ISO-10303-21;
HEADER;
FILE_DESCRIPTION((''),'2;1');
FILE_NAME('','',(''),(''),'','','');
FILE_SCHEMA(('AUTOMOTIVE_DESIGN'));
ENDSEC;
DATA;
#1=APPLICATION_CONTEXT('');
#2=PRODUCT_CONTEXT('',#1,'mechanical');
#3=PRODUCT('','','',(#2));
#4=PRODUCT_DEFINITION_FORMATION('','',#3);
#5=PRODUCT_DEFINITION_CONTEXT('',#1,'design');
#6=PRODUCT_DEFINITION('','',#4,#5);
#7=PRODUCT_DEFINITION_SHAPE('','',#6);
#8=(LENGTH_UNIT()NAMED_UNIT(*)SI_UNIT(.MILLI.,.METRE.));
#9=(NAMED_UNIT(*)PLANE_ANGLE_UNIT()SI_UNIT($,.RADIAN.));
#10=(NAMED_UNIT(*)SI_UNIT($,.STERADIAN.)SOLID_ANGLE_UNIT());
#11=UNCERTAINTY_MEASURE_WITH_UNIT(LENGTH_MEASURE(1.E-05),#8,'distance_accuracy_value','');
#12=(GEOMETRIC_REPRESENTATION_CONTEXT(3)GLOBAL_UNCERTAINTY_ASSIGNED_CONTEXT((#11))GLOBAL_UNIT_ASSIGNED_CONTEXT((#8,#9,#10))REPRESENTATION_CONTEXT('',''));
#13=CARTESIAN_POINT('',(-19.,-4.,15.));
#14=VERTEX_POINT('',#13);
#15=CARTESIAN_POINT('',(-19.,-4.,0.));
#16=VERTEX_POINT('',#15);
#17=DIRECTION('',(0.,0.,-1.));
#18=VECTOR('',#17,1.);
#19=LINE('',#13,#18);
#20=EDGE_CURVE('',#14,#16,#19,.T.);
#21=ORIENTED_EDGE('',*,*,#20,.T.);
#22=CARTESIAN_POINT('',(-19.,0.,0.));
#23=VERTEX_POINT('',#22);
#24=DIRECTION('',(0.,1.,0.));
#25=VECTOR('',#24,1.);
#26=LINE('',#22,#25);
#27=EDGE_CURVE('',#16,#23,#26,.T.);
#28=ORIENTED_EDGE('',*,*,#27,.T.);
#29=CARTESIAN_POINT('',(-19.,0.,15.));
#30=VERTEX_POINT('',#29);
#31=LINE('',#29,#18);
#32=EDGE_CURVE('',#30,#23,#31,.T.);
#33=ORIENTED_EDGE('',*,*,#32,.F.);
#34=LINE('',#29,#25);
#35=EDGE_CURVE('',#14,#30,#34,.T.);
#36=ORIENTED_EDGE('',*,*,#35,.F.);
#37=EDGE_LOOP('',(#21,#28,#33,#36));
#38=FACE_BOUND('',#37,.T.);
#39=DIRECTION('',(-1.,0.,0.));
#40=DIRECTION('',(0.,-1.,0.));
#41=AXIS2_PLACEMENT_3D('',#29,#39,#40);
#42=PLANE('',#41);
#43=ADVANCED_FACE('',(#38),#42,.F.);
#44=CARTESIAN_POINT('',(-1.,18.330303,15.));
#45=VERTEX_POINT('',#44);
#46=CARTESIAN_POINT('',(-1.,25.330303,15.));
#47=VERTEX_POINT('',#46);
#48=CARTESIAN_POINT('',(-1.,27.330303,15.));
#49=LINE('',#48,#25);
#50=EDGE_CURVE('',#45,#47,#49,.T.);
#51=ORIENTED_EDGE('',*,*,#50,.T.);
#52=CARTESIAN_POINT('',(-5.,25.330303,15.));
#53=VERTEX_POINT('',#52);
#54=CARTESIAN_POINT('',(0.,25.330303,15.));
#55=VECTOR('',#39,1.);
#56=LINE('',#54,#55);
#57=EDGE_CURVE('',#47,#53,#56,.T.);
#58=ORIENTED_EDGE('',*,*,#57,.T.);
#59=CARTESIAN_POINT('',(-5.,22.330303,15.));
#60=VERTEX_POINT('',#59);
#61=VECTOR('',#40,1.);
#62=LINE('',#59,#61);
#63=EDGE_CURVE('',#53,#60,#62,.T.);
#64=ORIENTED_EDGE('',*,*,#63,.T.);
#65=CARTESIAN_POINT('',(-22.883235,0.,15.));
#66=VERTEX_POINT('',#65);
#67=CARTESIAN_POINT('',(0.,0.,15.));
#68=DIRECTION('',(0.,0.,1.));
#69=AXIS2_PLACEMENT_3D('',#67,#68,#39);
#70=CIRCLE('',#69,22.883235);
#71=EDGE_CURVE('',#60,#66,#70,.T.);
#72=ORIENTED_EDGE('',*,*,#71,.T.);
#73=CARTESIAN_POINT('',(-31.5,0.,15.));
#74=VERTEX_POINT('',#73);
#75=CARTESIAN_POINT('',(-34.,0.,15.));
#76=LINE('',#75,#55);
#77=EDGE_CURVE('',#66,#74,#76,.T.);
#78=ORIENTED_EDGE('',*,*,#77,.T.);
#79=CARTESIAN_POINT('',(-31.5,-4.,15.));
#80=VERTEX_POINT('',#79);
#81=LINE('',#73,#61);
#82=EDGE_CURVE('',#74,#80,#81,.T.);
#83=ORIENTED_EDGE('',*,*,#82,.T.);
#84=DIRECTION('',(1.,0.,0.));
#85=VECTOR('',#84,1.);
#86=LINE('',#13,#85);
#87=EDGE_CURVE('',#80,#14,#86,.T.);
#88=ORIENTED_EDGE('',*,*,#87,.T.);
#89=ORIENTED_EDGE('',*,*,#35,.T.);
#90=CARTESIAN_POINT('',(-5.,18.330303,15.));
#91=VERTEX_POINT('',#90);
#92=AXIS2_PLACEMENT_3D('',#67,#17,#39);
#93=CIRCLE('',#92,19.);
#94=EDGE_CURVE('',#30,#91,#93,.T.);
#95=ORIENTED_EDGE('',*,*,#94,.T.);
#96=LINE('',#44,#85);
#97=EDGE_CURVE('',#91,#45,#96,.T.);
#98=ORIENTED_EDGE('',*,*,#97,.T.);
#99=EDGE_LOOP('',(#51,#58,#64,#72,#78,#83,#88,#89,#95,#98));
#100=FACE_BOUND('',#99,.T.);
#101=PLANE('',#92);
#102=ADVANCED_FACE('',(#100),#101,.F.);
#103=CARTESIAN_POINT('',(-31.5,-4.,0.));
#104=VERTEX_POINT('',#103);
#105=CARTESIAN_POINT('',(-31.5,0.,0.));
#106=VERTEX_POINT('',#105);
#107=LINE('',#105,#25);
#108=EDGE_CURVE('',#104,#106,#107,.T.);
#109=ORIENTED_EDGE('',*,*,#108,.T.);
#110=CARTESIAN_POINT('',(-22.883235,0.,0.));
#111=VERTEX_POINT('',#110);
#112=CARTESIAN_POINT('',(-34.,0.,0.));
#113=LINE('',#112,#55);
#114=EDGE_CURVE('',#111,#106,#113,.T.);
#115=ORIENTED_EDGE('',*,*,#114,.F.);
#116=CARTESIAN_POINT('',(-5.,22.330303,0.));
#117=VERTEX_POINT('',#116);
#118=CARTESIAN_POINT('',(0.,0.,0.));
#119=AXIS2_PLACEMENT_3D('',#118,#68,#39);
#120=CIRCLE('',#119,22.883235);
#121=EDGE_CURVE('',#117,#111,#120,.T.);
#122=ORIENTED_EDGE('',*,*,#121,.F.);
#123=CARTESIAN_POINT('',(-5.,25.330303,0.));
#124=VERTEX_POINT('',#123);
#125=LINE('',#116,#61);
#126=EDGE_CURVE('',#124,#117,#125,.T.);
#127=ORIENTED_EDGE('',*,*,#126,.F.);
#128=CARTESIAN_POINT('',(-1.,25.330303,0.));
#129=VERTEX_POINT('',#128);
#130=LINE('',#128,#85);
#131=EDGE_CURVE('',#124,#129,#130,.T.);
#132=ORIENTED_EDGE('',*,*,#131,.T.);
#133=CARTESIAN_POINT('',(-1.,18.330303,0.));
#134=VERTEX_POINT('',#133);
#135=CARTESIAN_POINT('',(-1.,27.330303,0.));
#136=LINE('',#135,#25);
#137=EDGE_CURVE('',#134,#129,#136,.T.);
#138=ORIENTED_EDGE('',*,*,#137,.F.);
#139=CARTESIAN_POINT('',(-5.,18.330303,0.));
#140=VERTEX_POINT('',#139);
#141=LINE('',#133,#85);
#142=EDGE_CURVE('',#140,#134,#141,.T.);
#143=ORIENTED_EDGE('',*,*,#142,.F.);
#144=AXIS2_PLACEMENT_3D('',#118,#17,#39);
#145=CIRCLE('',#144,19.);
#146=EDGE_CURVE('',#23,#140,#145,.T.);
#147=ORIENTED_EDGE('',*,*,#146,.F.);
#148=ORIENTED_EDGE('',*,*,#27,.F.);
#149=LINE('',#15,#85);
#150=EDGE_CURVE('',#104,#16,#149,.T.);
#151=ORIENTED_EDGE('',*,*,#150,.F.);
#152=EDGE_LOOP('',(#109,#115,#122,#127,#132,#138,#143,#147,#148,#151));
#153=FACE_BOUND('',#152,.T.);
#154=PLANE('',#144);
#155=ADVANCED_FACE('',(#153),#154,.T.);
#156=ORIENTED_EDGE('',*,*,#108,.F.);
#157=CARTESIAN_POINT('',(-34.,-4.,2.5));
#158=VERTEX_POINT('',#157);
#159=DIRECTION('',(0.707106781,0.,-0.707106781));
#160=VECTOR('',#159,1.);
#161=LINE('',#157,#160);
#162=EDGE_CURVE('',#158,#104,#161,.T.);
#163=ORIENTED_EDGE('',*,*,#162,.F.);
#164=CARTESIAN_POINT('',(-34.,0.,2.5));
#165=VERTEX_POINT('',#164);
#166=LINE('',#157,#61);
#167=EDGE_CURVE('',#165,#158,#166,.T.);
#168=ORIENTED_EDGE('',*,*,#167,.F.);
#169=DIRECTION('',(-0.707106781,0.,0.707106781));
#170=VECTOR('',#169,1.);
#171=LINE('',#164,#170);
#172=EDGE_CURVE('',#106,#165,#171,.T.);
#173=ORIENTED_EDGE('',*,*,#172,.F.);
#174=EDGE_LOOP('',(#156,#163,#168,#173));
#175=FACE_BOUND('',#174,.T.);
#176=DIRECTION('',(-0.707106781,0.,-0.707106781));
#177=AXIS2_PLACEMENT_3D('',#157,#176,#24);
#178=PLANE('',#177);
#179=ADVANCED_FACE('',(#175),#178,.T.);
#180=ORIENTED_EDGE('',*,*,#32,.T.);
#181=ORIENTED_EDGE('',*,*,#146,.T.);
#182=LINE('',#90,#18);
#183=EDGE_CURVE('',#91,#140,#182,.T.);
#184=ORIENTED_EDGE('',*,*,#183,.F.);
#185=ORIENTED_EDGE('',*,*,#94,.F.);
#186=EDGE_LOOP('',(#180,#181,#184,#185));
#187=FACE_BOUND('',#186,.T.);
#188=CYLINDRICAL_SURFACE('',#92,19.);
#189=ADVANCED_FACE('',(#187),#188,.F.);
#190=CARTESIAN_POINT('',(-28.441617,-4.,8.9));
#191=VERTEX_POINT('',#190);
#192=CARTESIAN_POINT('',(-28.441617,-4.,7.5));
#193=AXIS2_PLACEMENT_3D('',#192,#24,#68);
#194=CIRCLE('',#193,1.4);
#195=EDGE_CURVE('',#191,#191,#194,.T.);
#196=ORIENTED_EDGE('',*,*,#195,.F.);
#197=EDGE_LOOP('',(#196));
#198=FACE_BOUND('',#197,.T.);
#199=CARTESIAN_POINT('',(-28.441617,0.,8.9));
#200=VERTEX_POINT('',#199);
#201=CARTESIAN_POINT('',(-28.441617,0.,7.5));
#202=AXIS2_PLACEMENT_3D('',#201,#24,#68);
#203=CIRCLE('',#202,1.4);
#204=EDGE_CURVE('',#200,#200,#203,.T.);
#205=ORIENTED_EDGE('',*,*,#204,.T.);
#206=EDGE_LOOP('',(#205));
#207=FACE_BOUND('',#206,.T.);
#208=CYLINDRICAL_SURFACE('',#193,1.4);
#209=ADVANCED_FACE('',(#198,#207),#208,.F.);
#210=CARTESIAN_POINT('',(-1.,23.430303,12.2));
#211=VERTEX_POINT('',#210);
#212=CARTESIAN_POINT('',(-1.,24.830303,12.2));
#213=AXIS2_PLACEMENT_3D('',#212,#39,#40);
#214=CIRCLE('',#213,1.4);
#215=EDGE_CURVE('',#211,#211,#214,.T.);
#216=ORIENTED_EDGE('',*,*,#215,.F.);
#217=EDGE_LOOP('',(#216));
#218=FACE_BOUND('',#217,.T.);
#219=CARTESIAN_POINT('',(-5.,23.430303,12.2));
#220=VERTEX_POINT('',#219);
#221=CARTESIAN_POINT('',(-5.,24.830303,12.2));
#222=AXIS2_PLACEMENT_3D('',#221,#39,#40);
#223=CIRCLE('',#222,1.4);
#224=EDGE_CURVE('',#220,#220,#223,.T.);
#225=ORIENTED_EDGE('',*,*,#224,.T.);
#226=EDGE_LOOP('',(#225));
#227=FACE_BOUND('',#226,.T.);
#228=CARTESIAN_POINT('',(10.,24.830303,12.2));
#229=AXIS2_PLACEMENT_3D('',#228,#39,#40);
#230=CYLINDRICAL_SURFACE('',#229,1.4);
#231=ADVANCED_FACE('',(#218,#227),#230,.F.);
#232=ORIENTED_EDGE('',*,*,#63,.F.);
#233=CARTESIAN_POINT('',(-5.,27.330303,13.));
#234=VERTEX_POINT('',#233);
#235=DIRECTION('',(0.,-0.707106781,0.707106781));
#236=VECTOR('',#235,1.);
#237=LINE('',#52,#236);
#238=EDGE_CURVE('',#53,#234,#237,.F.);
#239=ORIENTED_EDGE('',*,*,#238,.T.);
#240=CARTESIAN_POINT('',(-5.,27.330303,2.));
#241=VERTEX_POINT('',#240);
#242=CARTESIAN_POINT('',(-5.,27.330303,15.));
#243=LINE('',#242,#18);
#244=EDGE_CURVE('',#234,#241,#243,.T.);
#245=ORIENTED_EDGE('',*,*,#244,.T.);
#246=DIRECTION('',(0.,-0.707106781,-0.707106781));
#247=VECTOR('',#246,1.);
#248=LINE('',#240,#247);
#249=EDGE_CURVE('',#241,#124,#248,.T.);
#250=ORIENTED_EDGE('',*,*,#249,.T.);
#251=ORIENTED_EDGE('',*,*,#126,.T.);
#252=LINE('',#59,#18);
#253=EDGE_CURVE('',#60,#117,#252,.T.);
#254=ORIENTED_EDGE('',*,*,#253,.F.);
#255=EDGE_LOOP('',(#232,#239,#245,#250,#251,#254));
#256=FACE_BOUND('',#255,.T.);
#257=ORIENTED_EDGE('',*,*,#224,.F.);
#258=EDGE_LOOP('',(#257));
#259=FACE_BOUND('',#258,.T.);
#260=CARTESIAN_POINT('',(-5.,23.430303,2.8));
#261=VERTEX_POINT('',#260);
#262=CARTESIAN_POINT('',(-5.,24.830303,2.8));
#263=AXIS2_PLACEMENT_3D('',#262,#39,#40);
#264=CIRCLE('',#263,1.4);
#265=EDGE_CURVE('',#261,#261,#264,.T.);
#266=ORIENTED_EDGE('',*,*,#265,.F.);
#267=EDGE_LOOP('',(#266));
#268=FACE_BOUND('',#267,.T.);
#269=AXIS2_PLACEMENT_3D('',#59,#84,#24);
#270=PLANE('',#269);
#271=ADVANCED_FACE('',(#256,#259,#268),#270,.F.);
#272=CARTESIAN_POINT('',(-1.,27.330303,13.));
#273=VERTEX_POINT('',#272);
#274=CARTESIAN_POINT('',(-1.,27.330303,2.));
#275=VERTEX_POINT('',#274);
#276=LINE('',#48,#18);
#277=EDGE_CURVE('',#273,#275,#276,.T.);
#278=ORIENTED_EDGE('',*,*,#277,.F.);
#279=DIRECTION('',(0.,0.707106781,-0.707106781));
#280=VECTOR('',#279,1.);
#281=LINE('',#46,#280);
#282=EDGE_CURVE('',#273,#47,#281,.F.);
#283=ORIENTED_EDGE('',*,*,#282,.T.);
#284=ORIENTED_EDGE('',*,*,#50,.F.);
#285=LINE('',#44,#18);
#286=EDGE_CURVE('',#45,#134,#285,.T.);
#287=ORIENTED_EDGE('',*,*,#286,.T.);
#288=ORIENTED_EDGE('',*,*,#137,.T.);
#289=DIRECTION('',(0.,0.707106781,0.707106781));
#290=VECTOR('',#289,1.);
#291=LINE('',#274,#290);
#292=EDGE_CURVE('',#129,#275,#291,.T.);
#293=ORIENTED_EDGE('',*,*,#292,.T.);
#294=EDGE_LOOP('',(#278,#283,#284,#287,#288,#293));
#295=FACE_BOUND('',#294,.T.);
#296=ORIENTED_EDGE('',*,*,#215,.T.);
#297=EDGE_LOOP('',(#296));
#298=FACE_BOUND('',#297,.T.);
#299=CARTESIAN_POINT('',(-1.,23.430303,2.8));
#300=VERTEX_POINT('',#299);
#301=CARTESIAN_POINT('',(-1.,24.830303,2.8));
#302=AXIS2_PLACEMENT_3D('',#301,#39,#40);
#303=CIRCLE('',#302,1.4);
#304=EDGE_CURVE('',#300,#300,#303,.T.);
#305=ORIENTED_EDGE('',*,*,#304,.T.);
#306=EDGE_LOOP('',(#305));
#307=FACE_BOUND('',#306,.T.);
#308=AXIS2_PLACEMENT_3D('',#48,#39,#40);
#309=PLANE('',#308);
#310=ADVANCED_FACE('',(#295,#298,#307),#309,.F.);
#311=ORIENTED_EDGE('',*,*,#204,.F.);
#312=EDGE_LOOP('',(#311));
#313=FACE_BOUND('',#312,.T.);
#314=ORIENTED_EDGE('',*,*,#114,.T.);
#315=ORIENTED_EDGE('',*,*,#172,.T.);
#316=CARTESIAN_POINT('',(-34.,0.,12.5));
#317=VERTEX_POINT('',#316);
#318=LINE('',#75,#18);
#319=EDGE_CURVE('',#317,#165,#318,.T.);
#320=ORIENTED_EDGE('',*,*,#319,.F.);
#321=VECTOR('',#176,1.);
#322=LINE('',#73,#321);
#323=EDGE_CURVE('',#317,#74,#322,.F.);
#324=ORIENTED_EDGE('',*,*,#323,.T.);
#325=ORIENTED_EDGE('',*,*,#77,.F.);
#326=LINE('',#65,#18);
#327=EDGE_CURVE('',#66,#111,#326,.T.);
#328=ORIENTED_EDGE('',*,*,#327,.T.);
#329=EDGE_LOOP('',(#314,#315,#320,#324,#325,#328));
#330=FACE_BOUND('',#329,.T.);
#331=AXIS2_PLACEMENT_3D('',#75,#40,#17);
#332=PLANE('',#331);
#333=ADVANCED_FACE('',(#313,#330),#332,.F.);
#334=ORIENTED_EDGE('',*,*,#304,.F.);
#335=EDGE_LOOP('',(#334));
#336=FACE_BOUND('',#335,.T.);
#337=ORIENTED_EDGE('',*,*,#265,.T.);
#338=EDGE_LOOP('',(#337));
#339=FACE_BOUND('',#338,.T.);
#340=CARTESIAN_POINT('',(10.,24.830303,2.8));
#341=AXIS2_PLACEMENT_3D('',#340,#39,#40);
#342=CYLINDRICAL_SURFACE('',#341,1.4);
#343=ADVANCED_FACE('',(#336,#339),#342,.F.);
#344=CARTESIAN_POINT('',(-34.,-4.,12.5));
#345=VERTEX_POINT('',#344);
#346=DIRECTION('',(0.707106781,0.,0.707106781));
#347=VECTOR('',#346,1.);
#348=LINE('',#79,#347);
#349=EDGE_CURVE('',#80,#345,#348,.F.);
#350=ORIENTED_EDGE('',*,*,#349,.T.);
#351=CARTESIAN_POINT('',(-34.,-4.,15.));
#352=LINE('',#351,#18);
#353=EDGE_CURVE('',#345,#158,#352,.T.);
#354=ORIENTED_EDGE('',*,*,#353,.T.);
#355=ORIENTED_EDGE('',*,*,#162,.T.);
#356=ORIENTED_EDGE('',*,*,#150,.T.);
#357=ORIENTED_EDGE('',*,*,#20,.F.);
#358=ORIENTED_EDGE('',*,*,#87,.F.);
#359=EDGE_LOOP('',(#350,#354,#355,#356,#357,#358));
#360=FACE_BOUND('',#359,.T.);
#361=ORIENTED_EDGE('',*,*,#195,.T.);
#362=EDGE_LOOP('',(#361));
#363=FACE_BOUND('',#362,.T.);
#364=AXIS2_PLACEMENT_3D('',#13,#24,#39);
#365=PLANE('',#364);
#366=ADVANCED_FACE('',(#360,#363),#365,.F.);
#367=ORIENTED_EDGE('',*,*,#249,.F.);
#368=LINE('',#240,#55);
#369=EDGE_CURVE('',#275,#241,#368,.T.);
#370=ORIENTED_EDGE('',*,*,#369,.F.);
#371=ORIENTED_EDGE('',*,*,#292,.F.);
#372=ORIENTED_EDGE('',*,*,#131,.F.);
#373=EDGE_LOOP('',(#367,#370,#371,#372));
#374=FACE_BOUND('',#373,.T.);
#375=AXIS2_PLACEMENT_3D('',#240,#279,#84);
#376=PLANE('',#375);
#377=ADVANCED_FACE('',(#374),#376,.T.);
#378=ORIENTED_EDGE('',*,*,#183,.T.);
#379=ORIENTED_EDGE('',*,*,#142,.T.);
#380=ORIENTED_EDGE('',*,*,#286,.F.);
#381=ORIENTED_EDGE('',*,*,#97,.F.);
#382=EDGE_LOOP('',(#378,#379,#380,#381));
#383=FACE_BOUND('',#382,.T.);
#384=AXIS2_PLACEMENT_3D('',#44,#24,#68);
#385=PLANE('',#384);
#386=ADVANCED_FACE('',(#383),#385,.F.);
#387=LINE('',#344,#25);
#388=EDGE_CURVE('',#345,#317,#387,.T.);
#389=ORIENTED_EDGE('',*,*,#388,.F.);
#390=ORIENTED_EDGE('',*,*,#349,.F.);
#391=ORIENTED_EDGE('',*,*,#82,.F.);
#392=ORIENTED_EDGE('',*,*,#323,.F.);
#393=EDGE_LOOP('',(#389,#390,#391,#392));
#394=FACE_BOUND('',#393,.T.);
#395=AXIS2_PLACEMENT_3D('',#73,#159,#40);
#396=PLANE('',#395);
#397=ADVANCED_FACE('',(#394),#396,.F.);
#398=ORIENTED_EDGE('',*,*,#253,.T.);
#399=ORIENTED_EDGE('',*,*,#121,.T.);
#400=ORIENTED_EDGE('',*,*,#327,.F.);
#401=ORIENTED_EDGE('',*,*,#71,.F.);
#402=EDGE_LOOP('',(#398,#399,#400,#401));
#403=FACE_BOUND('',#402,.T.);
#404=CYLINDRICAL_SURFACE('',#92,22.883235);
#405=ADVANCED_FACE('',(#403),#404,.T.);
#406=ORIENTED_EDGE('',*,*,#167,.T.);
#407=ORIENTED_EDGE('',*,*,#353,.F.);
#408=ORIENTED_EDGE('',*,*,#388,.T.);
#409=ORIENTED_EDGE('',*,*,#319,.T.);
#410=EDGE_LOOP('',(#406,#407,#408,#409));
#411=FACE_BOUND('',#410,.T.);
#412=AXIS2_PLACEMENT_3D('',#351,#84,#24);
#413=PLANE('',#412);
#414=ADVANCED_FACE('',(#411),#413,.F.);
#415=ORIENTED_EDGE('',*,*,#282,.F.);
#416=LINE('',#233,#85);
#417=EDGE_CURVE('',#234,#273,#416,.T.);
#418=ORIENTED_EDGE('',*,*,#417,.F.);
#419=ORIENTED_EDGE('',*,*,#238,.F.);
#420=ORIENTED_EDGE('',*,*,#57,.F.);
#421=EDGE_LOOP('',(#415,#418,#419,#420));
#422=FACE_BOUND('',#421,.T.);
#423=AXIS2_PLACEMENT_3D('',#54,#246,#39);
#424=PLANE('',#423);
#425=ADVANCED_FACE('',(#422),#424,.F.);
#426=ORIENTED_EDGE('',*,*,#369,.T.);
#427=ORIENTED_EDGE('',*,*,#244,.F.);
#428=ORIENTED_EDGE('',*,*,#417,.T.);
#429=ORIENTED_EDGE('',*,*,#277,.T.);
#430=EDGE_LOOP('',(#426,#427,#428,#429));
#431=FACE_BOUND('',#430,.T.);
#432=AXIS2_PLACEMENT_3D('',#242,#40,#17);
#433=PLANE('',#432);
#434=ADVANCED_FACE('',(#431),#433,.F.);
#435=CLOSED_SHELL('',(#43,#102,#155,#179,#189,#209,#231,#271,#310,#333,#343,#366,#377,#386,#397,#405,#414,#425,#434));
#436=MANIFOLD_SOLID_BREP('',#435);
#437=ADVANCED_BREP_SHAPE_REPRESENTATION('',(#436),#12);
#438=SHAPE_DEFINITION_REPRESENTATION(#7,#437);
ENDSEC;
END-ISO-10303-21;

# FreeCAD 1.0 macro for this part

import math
import FreeCAD as App
import Part
import Sketcher

V = App.Vector
Q = App.Units.Quantity


def edges_at(feature, points):
    """Names of the edges that pass closest to the given points."""
    edges = feature.Shape.Edges
    near = lambda p: min(range(len(edges)), key=lambda i: edges[i].distToShape(Part.Vertex(*p))[0])
    return sorted({f"Edge{near(p) + 1}" for p in points})

doc = App.newDocument("Part")
body = doc.addObject("PartDesign::Body", "Body")

sketch1 = body.newObject("Sketcher::SketchObject", "Sketch")
sketch1.AttachmentSupport = (doc.getObject("XY_Plane"), [""])
sketch1.MapMode = "FlatFace"
sketch1.addGeometry(Part.LineSegment(V(-19, -4, 0), V(-19, 0, 0)), False)
sketch1.addGeometry(Part.ArcOfCircle(Part.Circle(V(0, 0, 0), V(0, 0, 1), 19), math.radians(105.257523), math.radians(180)), False)
sketch1.addGeometry(Part.LineSegment(V(-5, 18.330303, 0), V(-1, 18.330303, 0)), False)
sketch1.addGeometry(Part.LineSegment(V(-1, 18.330303, 0), V(-1, 27.330303, 0)), False)
sketch1.addGeometry(Part.LineSegment(V(-1, 27.330303, 0), V(-5, 27.330303, 0)), False)
sketch1.addGeometry(Part.LineSegment(V(-5, 27.330303, 0), V(-5, 22.330303, 0)), False)
sketch1.addGeometry(Part.ArcOfCircle(Part.Circle(V(0, 0, 0), V(0, 0, 1), 22.883235), math.radians(102.62098), math.radians(180)), False)
sketch1.addGeometry(Part.LineSegment(V(-22.883235, 0, 0), V(-34, 0, 0)), False)
sketch1.addGeometry(Part.LineSegment(V(-34, 0, 0), V(-34, -4, 0)), False)
sketch1.addGeometry(Part.LineSegment(V(-34, -4, 0), V(-19, -4, 0)), False)
sketch1.addConstraint(Sketcher.Constraint("Tangent", 0, 2, 1, 2))
sketch1.addConstraint(Sketcher.Constraint("Coincident", 1, 1, 2, 1))
sketch1.addConstraint(Sketcher.Constraint("Coincident", 2, 2, 3, 1))
sketch1.addConstraint(Sketcher.Constraint("Coincident", 3, 2, 4, 1))
sketch1.addConstraint(Sketcher.Constraint("Coincident", 4, 2, 5, 1))
sketch1.addConstraint(Sketcher.Constraint("Coincident", 5, 2, 6, 1))
sketch1.addConstraint(Sketcher.Constraint("Coincident", 6, 2, 7, 1))
sketch1.addConstraint(Sketcher.Constraint("Coincident", 7, 2, 8, 1))
sketch1.addConstraint(Sketcher.Constraint("Coincident", 8, 2, 9, 1))
sketch1.addConstraint(Sketcher.Constraint("Coincident", 9, 2, 0, 1))
sketch1.addConstraint(Sketcher.Constraint("Vertical", 0))
sketch1.addConstraint(Sketcher.Constraint("Horizontal", 2))
sketch1.addConstraint(Sketcher.Constraint("Vertical", 3))
sketch1.addConstraint(Sketcher.Constraint("Horizontal", 4))
sketch1.addConstraint(Sketcher.Constraint("Vertical", 5))
sketch1.addConstraint(Sketcher.Constraint("Horizontal", 7))
sketch1.addConstraint(Sketcher.Constraint("Vertical", 8))
sketch1.addConstraint(Sketcher.Constraint("Horizontal", 9))
sketch1.addConstraint(Sketcher.Constraint("Coincident", 1, 3, -1, 1))
sketch1.addConstraint(Sketcher.Constraint("Coincident", 6, 3, -1, 1))
sketch1.addConstraint(Sketcher.Constraint("PointOnObject", 6, 2, -1))
sketch1.addConstraint(Sketcher.Constraint("Vertical", 1, 1, 4, 2))
sketch1.addConstraint(Sketcher.Constraint("Equal", 4, 0))
sketch1.addConstraint(Sketcher.Constraint("Radius", 1, Q("19 mm")))
sketch1.addConstraint(Sketcher.Constraint("DistanceX", 2, 1, 2, 2, Q("4 mm")))
sketch1.addConstraint(Sketcher.Constraint("DistanceX", 9, 1, 9, 2, Q("15 mm")))
sketch1.addConstraint(Sketcher.Constraint("DistanceY", 3, 1, 3, 2, Q("9 mm")))
sketch1.addConstraint(Sketcher.Constraint("DistanceY", 5, 2, 5, 1, Q("5 mm")))
sketch1.addConstraint(Sketcher.Constraint("DistanceX", 1, 1, -1, 1, Q("5 mm")))
pad1 = body.newObject("PartDesign::Pad", "Pad")
pad1.Profile = sketch1
pad1.Length = 15
doc.recompute()

chamfer = body.newObject("PartDesign::Chamfer", "Chamfer")
chamfer.Base = (pad1, edges_at(pad1, [(-34, -2, 0), (-34, -2, 15)]))
chamfer.Size = 2.5

sketch2 = body.newObject("Sketcher::SketchObject", "Sketch001")
sketch2.AttachmentSupport = (doc.getObject("YZ_Plane"), [""])
sketch2.MapMode = "FlatFace"
sketch2.AttachmentOffset = App.Placement(V(0, 0, -5), App.Rotation())
sketch2.addGeometry(Part.Circle(V(24.830303, 2.8, 0), V(0, 0, 1), 1.4), False)
sketch2.addGeometry(Part.Circle(V(24.830303, 12.2, 0), V(0, 0, 1), 1.4), False)
sketch2.addConstraint(Sketcher.Constraint("Equal", 0, 1))
sketch2.addConstraint(Sketcher.Constraint("Vertical", 0, 3, 1, 3))
sketch2.addConstraint(Sketcher.Constraint("Diameter", 0, Q("2.8 mm")))
sketch2.addConstraint(Sketcher.Constraint("DistanceY", -1, 1, 0, 3, Q("2.8 mm")))
sketch2.addConstraint(Sketcher.Constraint("DistanceY", -1, 1, 1, 3, Q("12.2 mm")))
sketch2.addConstraint(Sketcher.Constraint("DistanceX", -1, 1, 0, 3, Q("24.830303 mm")))
pocket1 = body.newObject("PartDesign::Pocket", "Pocket")
pocket1.Profile = sketch2
pocket1.Length = 15
pocket1.Reversed = True
doc.recompute()

chamfer2 = body.newObject("PartDesign::Chamfer", "Chamfer001")
chamfer2.Base = (pocket1, edges_at(pocket1, [(-3, 27.33, 0), (-3, 27.33, 15)]))
chamfer2.Size = 2

sketch3 = body.newObject("Sketcher::SketchObject", "Sketch002")
sketch3.AttachmentSupport = (doc.getObject("XZ_Plane"), [""])
sketch3.MapMode = "FlatFace"
sketch3.addGeometry(Part.Circle(V(-28.441617, 7.5, 0), V(0, 0, 1), 1.4), False)
sketch3.addConstraint(Sketcher.Constraint("Diameter", 0, Q("2.8 mm")))
sketch3.addConstraint(Sketcher.Constraint("DistanceY", -1, 1, 0, 3, Q("7.5 mm")))
sketch3.addConstraint(Sketcher.Constraint("DistanceX", 0, 3, -1, 1, Q("28.441617 mm")))
pocket2 = body.newObject("PartDesign::Pocket", "Pocket001")
pocket2.Profile = sketch3
pocket2.Type = "ThroughAll"
pocket2.Reversed = True

doc.recompute()
